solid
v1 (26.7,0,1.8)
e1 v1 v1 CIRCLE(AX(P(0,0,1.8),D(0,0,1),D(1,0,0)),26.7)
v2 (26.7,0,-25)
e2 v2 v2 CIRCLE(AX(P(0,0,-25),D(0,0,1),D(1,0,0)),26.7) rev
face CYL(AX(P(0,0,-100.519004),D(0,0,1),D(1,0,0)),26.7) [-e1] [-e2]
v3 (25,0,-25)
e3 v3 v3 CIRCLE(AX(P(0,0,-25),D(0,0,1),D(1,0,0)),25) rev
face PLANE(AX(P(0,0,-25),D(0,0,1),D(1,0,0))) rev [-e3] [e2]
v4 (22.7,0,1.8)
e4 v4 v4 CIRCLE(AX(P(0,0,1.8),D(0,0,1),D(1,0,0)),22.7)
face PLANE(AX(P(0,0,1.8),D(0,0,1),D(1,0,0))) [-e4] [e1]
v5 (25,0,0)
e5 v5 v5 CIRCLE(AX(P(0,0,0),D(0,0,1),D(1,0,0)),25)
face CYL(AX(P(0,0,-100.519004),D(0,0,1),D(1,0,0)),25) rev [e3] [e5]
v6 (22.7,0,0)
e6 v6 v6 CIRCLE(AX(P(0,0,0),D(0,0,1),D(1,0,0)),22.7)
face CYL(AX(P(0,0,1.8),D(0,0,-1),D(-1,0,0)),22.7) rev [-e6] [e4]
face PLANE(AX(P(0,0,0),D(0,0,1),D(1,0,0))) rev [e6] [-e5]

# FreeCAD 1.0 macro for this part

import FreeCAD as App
import Part
import Sketcher

V = App.Vector
Q = App.Units.Quantity

doc = App.newDocument("Part")
body = doc.addObject("PartDesign::Body", "Body")

sketch1 = doc.addObject("Sketcher::SketchObject", "Sketch")
body.addObject(sketch1)
sketch1.AttachmentSupport = (doc.XY_Plane, [""])
sketch1.MapMode = "FlatFace"
sketch1.addGeometry([
    Part.Circle(V(0, 0, 0), V(0, 0, 1), 26.7),
    Part.Circle(V(0, 0, 0), V(0, 0, 1), 25),
], False)
sketch1.addConstraint([
    Sketcher.Constraint("Coincident", 0, 3, -1, 1),
    Sketcher.Constraint("Coincident", 1, 3, -1, 1),
    Sketcher.Constraint("Diameter", 1, Q("50 mm")),
    Sketcher.Constraint("Diameter", 0, Q("53.4 mm")),
])
pad1 = doc.addObject("PartDesign::Pad", "Pad")
body.addObject(pad1)
pad1.Profile = sketch1
pad1.Length = 25
pad1.Reversed = True

sketch2 = doc.addObject("Sketcher::SketchObject", "Sketch001")
body.addObject(sketch2)
sketch2.AttachmentSupport = (doc.XY_Plane, [""])
sketch2.MapMode = "FlatFace"
sketch2.AttachmentOffset = App.Placement(V(0, 0, 1.8), App.Rotation())
sketch2.addGeometry([
    Part.Circle(V(0, 0, 0), V(0, 0, 1), 26.7),
    Part.Circle(V(0, 0, 0), V(0, 0, 1), 22.7),
], False)
sketch2.addConstraint([
    Sketcher.Constraint("Coincident", 0, 3, -1, 1),
    Sketcher.Constraint("Coincident", 1, 3, -1, 1),
    Sketcher.Constraint("Diameter", 0, Q("53.4 mm")),
    Sketcher.Constraint("Diameter", 1, Q("45.4 mm")),
])
pad2 = doc.addObject("PartDesign::Pad", "Pad001")
body.addObject(pad2)
pad2.Profile = sketch2
pad2.Length = 1.8
pad2.Reversed = True

doc.recompute()
